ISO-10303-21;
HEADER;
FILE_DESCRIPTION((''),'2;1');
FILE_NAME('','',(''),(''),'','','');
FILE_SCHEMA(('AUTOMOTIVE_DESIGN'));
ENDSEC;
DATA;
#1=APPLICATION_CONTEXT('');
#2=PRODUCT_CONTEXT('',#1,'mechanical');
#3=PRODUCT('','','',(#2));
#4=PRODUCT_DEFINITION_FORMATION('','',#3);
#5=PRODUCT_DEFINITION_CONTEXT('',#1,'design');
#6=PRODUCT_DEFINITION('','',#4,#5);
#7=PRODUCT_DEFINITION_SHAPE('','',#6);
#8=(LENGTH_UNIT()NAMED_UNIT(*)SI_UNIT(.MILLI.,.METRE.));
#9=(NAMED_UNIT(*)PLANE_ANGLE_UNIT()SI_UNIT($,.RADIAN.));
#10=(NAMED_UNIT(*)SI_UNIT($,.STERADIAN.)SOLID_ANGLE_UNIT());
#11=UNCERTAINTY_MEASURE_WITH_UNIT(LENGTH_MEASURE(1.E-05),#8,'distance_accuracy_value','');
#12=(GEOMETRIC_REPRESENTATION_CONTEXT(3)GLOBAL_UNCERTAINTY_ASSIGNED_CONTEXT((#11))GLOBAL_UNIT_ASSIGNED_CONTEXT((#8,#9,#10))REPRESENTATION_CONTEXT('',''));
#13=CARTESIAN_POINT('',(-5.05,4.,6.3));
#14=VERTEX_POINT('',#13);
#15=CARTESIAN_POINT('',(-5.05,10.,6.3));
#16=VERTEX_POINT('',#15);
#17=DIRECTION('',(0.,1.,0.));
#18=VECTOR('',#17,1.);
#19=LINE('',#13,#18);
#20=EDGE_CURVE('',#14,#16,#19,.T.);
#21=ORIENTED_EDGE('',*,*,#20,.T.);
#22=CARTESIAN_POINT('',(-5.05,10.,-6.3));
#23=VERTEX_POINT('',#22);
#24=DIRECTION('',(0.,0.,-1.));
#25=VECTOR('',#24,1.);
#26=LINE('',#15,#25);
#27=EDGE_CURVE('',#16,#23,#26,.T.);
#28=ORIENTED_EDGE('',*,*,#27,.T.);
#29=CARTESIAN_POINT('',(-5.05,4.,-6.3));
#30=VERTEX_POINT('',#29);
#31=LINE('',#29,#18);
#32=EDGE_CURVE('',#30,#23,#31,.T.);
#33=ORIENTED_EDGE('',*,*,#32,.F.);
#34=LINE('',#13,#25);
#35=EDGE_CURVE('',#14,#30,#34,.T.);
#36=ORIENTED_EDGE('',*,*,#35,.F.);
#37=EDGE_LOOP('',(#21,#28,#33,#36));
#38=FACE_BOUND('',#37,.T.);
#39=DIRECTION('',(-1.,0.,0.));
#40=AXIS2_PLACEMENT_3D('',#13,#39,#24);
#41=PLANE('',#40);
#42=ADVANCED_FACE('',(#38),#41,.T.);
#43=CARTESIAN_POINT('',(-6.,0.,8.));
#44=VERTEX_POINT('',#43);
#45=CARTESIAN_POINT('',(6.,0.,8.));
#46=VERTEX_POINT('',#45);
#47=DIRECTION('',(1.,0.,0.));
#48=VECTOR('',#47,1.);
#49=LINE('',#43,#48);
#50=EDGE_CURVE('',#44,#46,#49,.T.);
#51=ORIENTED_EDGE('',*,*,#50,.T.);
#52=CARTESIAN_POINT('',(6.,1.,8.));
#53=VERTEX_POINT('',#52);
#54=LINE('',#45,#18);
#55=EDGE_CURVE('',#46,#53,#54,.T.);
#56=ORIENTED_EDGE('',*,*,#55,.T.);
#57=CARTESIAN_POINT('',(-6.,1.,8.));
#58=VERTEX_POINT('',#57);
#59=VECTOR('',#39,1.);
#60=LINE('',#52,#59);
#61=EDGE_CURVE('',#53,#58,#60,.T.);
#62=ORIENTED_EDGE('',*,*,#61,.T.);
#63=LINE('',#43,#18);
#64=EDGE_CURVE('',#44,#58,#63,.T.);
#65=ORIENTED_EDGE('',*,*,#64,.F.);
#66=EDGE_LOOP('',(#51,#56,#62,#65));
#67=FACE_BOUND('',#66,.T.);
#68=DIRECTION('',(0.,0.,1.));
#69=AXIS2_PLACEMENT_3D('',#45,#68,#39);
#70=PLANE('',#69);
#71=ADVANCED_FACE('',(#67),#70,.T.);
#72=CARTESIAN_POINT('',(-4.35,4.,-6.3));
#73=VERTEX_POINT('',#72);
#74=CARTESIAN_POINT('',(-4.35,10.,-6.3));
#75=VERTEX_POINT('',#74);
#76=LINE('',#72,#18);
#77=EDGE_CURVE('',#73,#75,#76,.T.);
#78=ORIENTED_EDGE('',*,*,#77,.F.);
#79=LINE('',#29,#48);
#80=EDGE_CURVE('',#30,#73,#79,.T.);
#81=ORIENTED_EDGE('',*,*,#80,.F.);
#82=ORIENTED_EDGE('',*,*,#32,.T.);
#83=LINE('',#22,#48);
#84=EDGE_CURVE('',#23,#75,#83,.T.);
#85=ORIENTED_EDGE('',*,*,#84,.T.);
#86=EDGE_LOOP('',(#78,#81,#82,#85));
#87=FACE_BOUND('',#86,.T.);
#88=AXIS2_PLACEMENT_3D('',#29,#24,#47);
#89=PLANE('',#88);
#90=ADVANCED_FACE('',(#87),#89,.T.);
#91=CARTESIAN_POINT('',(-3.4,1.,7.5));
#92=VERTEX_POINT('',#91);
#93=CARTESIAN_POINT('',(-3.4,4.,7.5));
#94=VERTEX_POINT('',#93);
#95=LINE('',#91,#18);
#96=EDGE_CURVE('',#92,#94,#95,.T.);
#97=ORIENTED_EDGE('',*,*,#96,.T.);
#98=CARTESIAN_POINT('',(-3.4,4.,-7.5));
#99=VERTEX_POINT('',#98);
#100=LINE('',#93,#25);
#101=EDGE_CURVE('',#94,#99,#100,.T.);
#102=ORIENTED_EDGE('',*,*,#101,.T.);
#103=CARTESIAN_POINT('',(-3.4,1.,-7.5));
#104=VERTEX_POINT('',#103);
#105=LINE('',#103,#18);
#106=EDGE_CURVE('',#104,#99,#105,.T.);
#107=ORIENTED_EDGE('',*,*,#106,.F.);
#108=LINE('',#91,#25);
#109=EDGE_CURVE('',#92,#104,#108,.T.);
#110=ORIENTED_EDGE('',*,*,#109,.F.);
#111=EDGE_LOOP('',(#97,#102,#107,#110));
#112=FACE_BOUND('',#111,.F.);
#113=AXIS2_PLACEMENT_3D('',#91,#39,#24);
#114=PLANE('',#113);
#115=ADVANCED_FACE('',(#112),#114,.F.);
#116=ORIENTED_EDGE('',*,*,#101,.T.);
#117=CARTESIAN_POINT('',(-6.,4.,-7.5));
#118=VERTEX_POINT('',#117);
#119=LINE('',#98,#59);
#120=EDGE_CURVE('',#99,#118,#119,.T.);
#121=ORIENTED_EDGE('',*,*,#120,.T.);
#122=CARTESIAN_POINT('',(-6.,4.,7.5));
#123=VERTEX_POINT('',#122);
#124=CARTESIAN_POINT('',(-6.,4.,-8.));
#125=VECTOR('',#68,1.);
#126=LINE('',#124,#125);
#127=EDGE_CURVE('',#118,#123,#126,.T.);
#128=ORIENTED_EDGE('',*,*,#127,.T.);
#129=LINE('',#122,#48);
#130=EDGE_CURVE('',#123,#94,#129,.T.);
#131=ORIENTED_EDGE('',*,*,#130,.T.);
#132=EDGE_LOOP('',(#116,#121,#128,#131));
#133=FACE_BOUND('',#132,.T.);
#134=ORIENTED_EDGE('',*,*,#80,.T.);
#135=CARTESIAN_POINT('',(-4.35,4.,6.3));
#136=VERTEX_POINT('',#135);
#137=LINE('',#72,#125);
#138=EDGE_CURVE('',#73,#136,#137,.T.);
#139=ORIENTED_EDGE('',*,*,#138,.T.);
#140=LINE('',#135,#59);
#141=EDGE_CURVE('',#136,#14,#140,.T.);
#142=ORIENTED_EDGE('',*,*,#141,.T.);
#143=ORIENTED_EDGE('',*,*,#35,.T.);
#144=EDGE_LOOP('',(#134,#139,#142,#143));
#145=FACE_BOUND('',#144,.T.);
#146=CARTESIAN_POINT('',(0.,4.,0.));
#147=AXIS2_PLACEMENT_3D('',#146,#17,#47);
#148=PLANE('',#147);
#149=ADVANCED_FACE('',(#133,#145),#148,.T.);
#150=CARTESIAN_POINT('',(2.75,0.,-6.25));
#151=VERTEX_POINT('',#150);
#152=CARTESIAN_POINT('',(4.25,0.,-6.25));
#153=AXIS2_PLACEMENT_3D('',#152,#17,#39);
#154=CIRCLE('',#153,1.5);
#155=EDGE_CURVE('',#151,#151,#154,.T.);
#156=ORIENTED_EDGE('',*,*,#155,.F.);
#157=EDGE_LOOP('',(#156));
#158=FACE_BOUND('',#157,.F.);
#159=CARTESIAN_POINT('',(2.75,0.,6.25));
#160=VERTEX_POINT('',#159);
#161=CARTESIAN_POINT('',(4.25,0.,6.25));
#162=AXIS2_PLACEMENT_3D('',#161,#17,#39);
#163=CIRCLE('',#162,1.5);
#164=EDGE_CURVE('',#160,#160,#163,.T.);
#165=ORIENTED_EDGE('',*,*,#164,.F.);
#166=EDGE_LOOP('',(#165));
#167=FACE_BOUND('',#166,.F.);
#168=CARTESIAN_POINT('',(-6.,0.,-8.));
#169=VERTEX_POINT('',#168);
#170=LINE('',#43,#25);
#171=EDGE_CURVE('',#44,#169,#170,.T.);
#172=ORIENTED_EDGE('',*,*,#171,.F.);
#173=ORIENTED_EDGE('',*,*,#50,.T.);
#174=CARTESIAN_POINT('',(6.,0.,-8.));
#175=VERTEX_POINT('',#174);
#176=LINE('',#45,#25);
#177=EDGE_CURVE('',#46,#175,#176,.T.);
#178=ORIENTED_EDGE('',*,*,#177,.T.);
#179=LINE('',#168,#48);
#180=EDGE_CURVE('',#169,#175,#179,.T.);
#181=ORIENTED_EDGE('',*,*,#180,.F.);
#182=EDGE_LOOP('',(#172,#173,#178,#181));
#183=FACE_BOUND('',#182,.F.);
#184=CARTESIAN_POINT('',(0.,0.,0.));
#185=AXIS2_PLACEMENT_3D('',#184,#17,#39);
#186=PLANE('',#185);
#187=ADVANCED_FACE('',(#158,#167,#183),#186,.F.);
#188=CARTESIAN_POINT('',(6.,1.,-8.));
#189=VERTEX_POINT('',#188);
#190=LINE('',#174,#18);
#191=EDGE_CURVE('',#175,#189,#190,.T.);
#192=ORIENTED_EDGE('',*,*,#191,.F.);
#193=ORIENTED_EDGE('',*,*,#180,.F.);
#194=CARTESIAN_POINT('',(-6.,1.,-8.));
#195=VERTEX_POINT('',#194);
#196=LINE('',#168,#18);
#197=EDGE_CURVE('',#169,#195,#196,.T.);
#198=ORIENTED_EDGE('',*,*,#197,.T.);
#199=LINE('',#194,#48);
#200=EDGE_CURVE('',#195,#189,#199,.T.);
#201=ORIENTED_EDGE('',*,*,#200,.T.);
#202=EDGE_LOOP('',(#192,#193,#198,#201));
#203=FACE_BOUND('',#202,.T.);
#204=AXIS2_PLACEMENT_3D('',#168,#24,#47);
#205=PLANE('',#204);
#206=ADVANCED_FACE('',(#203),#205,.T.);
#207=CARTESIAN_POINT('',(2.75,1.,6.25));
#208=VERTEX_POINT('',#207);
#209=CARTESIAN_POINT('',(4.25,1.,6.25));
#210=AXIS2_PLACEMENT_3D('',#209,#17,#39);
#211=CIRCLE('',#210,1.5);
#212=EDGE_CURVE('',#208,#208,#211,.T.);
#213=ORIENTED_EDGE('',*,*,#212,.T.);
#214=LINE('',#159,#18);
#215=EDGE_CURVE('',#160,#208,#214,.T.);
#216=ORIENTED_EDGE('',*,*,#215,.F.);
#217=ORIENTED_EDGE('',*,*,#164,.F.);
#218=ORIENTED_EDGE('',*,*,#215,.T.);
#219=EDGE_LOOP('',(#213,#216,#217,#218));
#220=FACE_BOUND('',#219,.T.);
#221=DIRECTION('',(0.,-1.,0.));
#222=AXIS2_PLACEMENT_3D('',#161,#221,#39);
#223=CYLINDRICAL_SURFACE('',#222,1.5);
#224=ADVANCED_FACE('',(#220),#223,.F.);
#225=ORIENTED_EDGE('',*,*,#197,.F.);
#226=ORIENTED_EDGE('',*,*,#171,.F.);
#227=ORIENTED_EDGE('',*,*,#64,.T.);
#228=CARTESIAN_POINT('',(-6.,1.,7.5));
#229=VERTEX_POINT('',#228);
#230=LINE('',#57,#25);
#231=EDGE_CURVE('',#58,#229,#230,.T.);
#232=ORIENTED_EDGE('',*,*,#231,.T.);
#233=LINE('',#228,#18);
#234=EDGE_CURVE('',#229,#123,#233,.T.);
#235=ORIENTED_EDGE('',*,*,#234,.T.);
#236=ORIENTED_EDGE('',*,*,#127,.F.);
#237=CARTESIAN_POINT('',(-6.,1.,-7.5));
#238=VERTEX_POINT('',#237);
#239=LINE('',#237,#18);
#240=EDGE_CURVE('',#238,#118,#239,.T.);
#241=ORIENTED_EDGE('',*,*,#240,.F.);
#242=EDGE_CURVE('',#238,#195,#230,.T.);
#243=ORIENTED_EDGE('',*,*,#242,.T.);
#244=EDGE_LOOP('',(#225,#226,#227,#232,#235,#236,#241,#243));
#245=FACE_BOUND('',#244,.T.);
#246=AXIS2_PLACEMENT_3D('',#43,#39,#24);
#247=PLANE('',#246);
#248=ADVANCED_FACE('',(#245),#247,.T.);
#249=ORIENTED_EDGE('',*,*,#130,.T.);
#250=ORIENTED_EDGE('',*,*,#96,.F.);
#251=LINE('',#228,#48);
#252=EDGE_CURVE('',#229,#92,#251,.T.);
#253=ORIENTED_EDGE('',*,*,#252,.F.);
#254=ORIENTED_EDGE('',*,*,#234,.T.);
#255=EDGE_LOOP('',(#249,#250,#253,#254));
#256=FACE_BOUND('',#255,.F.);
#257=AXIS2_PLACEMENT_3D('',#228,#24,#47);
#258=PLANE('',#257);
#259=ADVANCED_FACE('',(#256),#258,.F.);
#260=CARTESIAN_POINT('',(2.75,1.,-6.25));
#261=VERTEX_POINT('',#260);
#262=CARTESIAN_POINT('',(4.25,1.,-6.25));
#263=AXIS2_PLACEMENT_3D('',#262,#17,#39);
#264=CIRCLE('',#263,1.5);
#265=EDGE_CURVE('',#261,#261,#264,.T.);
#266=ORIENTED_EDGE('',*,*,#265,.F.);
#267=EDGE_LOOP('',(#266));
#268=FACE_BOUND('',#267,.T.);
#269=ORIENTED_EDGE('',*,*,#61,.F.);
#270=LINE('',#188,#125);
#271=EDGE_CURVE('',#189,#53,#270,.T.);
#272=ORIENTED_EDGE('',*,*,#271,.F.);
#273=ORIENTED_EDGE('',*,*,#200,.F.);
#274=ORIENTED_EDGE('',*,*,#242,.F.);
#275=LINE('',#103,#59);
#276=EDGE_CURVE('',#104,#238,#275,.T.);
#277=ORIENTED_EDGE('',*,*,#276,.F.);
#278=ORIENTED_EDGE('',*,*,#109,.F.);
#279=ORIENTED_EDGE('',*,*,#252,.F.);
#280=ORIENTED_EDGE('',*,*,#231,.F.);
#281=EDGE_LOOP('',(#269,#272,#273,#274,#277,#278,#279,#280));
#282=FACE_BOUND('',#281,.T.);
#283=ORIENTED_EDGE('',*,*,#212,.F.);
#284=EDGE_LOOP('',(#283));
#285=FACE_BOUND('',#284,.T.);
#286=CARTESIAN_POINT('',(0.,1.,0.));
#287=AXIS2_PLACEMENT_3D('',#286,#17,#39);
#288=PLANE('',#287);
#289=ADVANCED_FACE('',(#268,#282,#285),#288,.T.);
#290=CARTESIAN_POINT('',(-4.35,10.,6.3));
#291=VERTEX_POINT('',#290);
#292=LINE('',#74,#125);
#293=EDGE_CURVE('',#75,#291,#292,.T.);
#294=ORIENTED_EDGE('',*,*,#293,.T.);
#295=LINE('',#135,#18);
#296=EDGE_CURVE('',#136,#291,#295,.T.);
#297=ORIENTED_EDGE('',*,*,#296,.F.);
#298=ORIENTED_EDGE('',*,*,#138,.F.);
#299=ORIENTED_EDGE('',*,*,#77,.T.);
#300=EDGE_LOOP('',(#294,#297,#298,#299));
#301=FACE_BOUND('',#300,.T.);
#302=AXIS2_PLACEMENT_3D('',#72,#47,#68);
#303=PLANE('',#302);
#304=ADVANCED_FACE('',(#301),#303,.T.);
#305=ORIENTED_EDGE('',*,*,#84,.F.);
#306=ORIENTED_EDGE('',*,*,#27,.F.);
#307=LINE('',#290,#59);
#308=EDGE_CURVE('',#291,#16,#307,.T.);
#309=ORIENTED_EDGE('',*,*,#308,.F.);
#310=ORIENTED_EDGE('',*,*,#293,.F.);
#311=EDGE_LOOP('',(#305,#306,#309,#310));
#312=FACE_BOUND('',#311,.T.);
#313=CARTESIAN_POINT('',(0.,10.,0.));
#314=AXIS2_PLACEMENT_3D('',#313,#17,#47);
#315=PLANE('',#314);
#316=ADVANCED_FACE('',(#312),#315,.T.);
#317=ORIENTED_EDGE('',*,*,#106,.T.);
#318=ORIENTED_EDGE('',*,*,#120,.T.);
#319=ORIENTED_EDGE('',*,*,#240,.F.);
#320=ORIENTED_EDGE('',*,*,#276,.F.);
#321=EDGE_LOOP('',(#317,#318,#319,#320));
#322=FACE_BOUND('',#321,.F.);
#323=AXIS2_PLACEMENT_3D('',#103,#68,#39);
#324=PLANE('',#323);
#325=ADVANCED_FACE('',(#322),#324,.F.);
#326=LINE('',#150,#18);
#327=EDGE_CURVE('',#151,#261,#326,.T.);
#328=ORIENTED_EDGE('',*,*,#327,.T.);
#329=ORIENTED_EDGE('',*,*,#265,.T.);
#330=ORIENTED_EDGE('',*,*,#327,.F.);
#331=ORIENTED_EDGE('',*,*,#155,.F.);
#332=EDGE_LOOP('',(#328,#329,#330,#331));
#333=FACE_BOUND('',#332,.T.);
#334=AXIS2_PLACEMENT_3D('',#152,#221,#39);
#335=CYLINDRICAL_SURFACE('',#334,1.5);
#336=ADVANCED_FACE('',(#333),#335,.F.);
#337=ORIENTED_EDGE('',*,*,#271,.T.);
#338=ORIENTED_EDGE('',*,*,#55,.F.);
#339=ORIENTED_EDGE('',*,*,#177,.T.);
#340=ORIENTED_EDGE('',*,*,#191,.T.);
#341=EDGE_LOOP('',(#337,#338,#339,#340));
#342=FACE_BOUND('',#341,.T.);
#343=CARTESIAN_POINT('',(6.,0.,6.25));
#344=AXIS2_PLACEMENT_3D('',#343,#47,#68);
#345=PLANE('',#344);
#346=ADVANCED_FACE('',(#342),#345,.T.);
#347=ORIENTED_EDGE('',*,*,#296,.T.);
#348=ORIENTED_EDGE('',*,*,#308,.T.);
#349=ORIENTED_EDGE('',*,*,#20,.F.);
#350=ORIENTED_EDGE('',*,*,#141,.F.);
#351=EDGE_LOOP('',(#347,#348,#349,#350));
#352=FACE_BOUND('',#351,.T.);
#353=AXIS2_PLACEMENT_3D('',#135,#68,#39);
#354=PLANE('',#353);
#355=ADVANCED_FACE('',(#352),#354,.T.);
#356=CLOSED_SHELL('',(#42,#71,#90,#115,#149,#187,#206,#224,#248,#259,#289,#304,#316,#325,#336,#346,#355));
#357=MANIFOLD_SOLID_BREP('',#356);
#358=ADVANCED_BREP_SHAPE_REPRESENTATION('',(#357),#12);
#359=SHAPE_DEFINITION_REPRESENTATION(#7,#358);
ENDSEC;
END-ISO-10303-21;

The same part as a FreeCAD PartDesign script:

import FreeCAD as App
import Part
import Sketcher
from FreeCAD import Vector
Q = App.Units.Quantity

doc = App.newDocument("Part")
body = doc.addObject("PartDesign::Body", "Body")

# Sketch on XZ plane
sketch1 = body.newObject("Sketcher::SketchObject", "Sketch")
sketch1.AttachmentSupport = (doc.getObject("XZ_Plane"), [""])
sketch1.MapMode = "FlatFace"
sketch1.addGeometry([
    Part.LineSegment(Vector(-6, 8, 0), Vector(6, 8, 0)),  # 0
    Part.LineSegment(Vector(6, 8, 0), Vector(6, -8, 0)),  # 1
    Part.LineSegment(Vector(6, -8, 0), Vector(-6, -8, 0)),  # 2
    Part.LineSegment(Vector(-6, -8, 0), Vector(-6, 8, 0)),  # 3
    Part.Circle(Vector(4.2, -6.2, 0), Vector(0, 0, 1), 1.5),  # 4
    Part.Circle(Vector(4.2, 6.2, 0), Vector(0, 0, 1), 1.5),  # 5
], False)
sketch1.addConstraint([
    Sketcher.Constraint("Coincident", 0, 2, 1, 1),
    Sketcher.Constraint("Coincident", 1, 2, 2, 1),
    Sketcher.Constraint("Coincident", 2, 2, 3, 1),
    Sketcher.Constraint("Coincident", 3, 2, 0, 1),
    Sketcher.Constraint("Horizontal", 0),
    Sketcher.Constraint("Vertical", 1),
    Sketcher.Constraint("Horizontal", 2),
    Sketcher.Constraint("Vertical", 3),
    Sketcher.Constraint("Equal", 4, 5),
    Sketcher.Constraint("Symmetric", 0, 2, 2, 2, -1, 1),
    Sketcher.Constraint("Symmetric", 4, 3, 5, 3, -1),
    Sketcher.Constraint("Diameter", 4, Q("3 mm")),
    Sketcher.Constraint("DistanceX", 0, 1, 0, 2, Q("12 mm")),
    Sketcher.Constraint("DistanceY", 1, 2, 1, 1, Q("16 mm")),
    Sketcher.Constraint("DistanceX", 5, 3, 0, 2, Q("1.75 mm")),
    Sketcher.Constraint("DistanceY", 5, 3, 0, 2, Q("1.75 mm")),
])
pad1 = body.newObject("PartDesign::Pad", "Pad")
pad1.Profile = sketch1
pad1.Length = 1
pad1.Reversed = True

# Sketch on XZ plane
sketch2 = body.newObject("Sketcher::SketchObject", "Sketch001")
sketch2.AttachmentSupport = (doc.getObject("XZ_Plane"), [""])
sketch2.MapMode = "FlatFace"
sketch2.AttachmentOffset = App.Placement(Vector(0, 0, -1), App.Rotation())
sketch2.addGeometry([
    Part.LineSegment(Vector(-3.4, -7.5, 0), Vector(-6, -7.5, 0)),
    Part.LineSegment(Vector(-6, -7.5, 0), Vector(-6, 7.5, 0)),
    Part.LineSegment(Vector(-6, 7.5, 0), Vector(-3.4, 7.5, 0)),
    Part.LineSegment(Vector(-3.4, 7.5, 0), Vector(-3.4, -7.5, 0)),
], False)
sketch2.addConstraint([
    Sketcher.Constraint("Coincident", 0, 2, 1, 1),
    Sketcher.Constraint("Coincident", 1, 2, 2, 1),
    Sketcher.Constraint("Coincident", 2, 2, 3, 1),
    Sketcher.Constraint("Coincident", 3, 2, 0, 1),
    Sketcher.Constraint("Horizontal", 0),
    Sketcher.Constraint("Vertical", 1),
    Sketcher.Constraint("Horizontal", 2),
    Sketcher.Constraint("Vertical", 3),
    Sketcher.Constraint("DistanceY", 1, 1, 1, 2, Q("15 mm")),
    Sketcher.Constraint("DistanceX", 0, 2, 0, 1, Q("2.6 mm")),
    Sketcher.Constraint("DistanceX", 0, 2, -1, 1, Q("6 mm")),
    Sketcher.Constraint("DistanceY", 0, 2, -1, 1, Q("7.5 mm")),
])
pad2 = body.newObject("PartDesign::Pad", "Pad001")
pad2.Profile = sketch2
pad2.Length = 3
pad2.Reversed = True

# Sketch on XZ plane
sketch3 = body.newObject("Sketcher::SketchObject", "Sketch002")
sketch3.AttachmentSupport = (doc.getObject("XZ_Plane"), [""])
sketch3.MapMode = "FlatFace"
sketch3.AttachmentOffset = App.Placement(Vector(0, 0, -4), App.Rotation())
sketch3.addGeometry([
    Part.LineSegment(Vector(-5, 6.3, 0), Vector(-4.3, 6.3, 0)),
    Part.LineSegment(Vector(-4.3, 6.3, 0), Vector(-4.3, -6.3, 0)),
    Part.LineSegment(Vector(-4.3, -6.3, 0), Vector(-5, -6.3, 0)),
    Part.LineSegment(Vector(-5, -6.3, 0), Vector(-5, 6.3, 0)),
], False)
sketch3.addConstraint([
    Sketcher.Constraint("Coincident", 0, 2, 1, 1),
    Sketcher.Constraint("Coincident", 1, 2, 2, 1),
    Sketcher.Constraint("Coincident", 2, 2, 3, 1),
    Sketcher.Constraint("Coincident", 3, 2, 0, 1),
    Sketcher.Constraint("Horizontal", 0),
    Sketcher.Constraint("Vertical", 1),
    Sketcher.Constraint("Horizontal", 2),
    Sketcher.Constraint("Vertical", 3),
    Sketcher.Constraint("DistanceX", 0, 1, 0, 2, Q("0.7 mm")),
    Sketcher.Constraint("DistanceY", 1, 2, 1, 1, Q("12.6 mm")),
    Sketcher.Constraint("DistanceY", -1, 1, 0, 2, Q("6.3 mm")),
    Sketcher.Constraint("DistanceX", 0, 2, -1, 1, Q("4.35 mm")),
])
pad3 = body.newObject("PartDesign::Pad", "Pad002")
pad3.Profile = sketch3
pad3.Length = 6
pad3.Reversed = True

doc.recompute()
